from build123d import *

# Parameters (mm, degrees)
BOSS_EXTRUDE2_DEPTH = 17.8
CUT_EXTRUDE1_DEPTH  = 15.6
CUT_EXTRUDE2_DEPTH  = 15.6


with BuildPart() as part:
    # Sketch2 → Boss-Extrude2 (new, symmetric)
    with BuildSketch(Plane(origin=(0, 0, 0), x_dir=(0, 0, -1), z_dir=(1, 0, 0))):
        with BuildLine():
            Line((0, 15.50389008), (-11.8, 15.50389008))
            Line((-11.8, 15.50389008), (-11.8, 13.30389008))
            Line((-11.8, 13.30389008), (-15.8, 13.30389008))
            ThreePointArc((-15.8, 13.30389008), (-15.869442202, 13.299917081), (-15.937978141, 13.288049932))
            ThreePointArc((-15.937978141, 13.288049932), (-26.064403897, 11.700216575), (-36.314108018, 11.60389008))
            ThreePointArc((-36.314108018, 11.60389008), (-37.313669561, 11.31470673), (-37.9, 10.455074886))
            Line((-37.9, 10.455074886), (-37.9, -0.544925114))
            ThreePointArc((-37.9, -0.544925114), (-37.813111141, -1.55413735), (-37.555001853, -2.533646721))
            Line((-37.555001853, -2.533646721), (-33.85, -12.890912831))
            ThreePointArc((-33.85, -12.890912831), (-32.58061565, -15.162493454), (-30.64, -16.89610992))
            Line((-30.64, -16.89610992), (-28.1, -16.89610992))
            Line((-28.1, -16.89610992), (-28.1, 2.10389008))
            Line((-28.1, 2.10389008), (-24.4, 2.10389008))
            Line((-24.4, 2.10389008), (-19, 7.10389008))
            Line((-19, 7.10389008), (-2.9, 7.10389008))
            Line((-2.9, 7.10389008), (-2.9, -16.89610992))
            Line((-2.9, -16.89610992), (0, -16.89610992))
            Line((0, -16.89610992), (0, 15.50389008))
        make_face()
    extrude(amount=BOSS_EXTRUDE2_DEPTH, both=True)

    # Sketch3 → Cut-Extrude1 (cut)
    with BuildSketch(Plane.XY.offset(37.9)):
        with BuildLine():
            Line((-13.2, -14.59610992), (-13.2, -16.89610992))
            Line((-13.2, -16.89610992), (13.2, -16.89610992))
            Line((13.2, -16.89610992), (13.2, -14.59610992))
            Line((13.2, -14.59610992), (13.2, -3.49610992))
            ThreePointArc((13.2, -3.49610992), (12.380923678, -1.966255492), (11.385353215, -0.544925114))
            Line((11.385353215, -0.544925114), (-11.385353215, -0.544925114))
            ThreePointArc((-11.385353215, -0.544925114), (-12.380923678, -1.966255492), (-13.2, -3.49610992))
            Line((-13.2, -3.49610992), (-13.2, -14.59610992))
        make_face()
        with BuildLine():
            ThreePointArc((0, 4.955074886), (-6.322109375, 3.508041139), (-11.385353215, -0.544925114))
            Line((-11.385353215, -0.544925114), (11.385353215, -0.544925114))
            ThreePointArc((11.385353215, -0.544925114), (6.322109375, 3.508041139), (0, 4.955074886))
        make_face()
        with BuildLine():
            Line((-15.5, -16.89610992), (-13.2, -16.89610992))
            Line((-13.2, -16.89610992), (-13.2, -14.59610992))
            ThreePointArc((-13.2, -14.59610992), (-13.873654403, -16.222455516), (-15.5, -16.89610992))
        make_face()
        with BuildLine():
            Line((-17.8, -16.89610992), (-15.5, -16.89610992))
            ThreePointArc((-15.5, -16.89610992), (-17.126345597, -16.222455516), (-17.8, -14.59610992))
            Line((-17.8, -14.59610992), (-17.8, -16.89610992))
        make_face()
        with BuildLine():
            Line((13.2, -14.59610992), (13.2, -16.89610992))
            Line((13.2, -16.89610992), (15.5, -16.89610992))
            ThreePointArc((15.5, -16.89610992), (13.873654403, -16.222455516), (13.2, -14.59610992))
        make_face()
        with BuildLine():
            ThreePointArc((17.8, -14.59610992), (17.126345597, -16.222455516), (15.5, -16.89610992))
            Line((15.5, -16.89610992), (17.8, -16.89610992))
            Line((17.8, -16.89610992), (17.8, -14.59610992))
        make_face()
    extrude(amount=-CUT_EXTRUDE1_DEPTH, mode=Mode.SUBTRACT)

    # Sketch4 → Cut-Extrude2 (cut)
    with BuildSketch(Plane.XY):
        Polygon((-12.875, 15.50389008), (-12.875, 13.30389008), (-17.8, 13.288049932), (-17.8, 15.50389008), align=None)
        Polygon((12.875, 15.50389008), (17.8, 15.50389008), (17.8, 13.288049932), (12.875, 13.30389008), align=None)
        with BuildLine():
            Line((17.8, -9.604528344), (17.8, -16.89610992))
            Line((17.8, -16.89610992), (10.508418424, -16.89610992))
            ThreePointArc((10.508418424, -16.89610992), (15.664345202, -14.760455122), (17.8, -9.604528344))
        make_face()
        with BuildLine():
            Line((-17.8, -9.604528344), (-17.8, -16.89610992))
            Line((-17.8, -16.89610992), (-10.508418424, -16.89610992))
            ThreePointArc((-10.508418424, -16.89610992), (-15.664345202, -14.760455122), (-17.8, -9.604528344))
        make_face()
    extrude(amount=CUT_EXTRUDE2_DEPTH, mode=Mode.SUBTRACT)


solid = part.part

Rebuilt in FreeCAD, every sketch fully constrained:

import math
import FreeCAD as App
import Part
import Sketcher

doc = App.newDocument("Part")
body = doc.addObject("PartDesign::Body", "Body")

# Sketch on YZ plane
sketch1 = doc.addObject("Sketcher::SketchObject", "Sketch")
body.addObject(sketch1)
sketch1.AttachmentSupport = (doc.YZ_Plane, [""])
sketch1.MapMode = "FlatFace"
sketch1.addGeometry([
    Part.LineSegment(App.Vector(15.50389, 0, 0), App.Vector(15.50389, 11.8, 0)),  # 0
    Part.LineSegment(App.Vector(15.50389, 11.8, 0), App.Vector(13.30389, 11.8, 0)),  # 1
    Part.LineSegment(App.Vector(13.30389, 11.8, 0), App.Vector(13.30389, 15.8, 0)),  # 2
    Part.ArcOfCircle(Part.Circle(App.Vector(12.69503, 15.8, 0), App.Vector(0, 0, 1), 0.60886), math.radians(-0.000001), math.radians(13.097985)),  # 3
    Part.ArcOfCircle(Part.Circle(App.Vector(81.664907, 31.847235, 0), App.Vector(0, 0, 1), 70.203269), math.radians(176.351937), math.radians(193.097984)),  # 4
    Part.ArcOfCircle(Part.Circle(App.Vector(10.069868, 36.411912, 0), App.Vector(0, 0, 1), 1.537136), math.radians(-3.648063), math.radians(75.486972)),  # 5
    Part.LineSegment(App.Vector(10.455075, 37.9, 0), App.Vector(-0.544925, 37.9, 0)),  # 6
    Part.ArcOfCircle(Part.Circle(App.Vector(-0.544925, 31.995566, 0), App.Vector(0, 0, 1), 5.904434), math.radians(90), math.radians(109.683149)),  # 7
    Part.LineSegment(App.Vector(-2.533647, 37.555002, 0), App.Vector(-12.890913, 33.85, 0)),  # 8
    Part.ArcOfCircle(Part.Circle(App.Vector(-10.239533, 26.438115, 0), App.Vector(0, 0, 1), 7.87184), math.radians(109.683149), math.radians(147.738318)),  # 9
    Part.LineSegment(App.Vector(-16.89611, 30.64, 0), App.Vector(-16.89611, 28.1, 0)),  # 10
    Part.LineSegment(App.Vector(-16.89611, 28.1, 0), App.Vector(2.10389, 28.1, 0)),  # 11
    Part.LineSegment(App.Vector(2.10389, 28.1, 0), App.Vector(2.10389, 24.4, 0)),  # 12
    Part.LineSegment(App.Vector(2.10389, 24.4, 0), App.Vector(7.10389, 19, 0)),  # 13
    Part.LineSegment(App.Vector(7.10389, 19, 0), App.Vector(7.10389, 2.9, 0)),  # 14
    Part.LineSegment(App.Vector(7.10389, 2.9, 0), App.Vector(-16.89611, 2.9, 0)),  # 15
    Part.LineSegment(App.Vector(-16.89611, 2.9, 0), App.Vector(-16.89611, 0, 0)),  # 16
    Part.LineSegment(App.Vector(-16.89611, 0, 0), App.Vector(15.50389, 0, 0)),  # 17
], False)
sketch1.addConstraint([
    Sketcher.Constraint("Coincident", 0, 2, 1, 1),
    Sketcher.Constraint("Coincident", 1, 2, 2, 1),
    Sketcher.Constraint("Tangent", 2, 2, 3, 1),
    Sketcher.Constraint("Tangent", 3, 2, 4, 2),
    Sketcher.Constraint("Tangent", 4, 1, 5, 1),
    Sketcher.Constraint("Coincident", 5, 2, 6, 1),
    Sketcher.Constraint("Tangent", 6, 2, 7, 1),
    Sketcher.Constraint("Tangent", 7, 2, 8, 1),
    Sketcher.Constraint("Tangent", 8, 2, 9, 1),
    Sketcher.Constraint("Coincident", 9, 2, 10, 1),
    Sketcher.Constraint("Coincident", 10, 2, 11, 1),
    Sketcher.Constraint("Coincident", 11, 2, 12, 1),
    Sketcher.Constraint("Coincident", 12, 2, 13, 1),
    Sketcher.Constraint("Coincident", 13, 2, 14, 1),
    Sketcher.Constraint("Coincident", 14, 2, 15, 1),
    Sketcher.Constraint("Coincident", 15, 2, 16, 1),
    Sketcher.Constraint("Coincident", 16, 2, 17, 1),
    Sketcher.Constraint("Coincident", 17, 2, 0, 1),
    Sketcher.Constraint("Vertical", 0),
    Sketcher.Constraint("Horizontal", 1),
    Sketcher.Constraint("Vertical", 2),
    Sketcher.Constraint("Horizontal", 6),
    Sketcher.Constraint("Vertical", 10),
    Sketcher.Constraint("Horizontal", 11),
    Sketcher.Constraint("Vertical", 12),
    Sketcher.Constraint("Vertical", 14),
    Sketcher.Constraint("Horizontal", 15),
    Sketcher.Constraint("Vertical", 16),
    Sketcher.Constraint("Horizontal", 17),
    Sketcher.Constraint("PointOnObject", 16, 2, -1),
    Sketcher.Constraint("Vertical", 10, 2, 15, 2),
    Sketcher.Constraint("DistanceX", 6, 2, 6, 1, 11.0),
    Sketcher.Constraint("DistanceX", 11, 1, 11, 2, 19.0),
    Sketcher.Constraint("DistanceX", 15, 2, 15, 1, 24.0),
    Sketcher.Constraint("DistanceY", 2, 1, 2, 2, 4.0),
    Sketcher.Constraint("Distance", 8, 11.0),
    Sketcher.Constraint("DistanceX", 1, 2, 1, 1, 2.2),
    Sketcher.Constraint("DistanceX", 17, 1, 17, 2, 32.4),
    Sketcher.Constraint("DistanceY", 0, 1, 0, 2, 11.8),
    Sketcher.Constraint("DistanceY", 12, 2, 12, 1, 3.7),
    Sketcher.Constraint("DistanceY", 14, 2, 14, 1, 16.1),
    Sketcher.Constraint("DistanceY", 16, 2, 16, 1, 2.9),
    Sketcher.Constraint("DistanceY", 10, 2, 10, 1, 2.54),
    Sketcher.Constraint("DistanceY", -1, 1, 5, 2, 37.9),
    Sketcher.Constraint("DistanceY", -1, 1, 10, 2, 28.1),
    Sketcher.Constraint("DistanceX", 4, 1, 2, 2, 1.7),
    Sketcher.Constraint("DistanceY", -1, 1, 8, 2, 33.85),
    Sketcher.Constraint("Radius", 3, 0.60886),
    Sketcher.Constraint("Radius", 4, 70.203269),
    Sketcher.Constraint("Radius", 9, 7.87184),
    Sketcher.Constraint("DistanceY", -1, 1, 7, 2, 37.555002),
    Sketcher.Constraint("Radius", 5, 1.537136),
    Sketcher.Constraint("DistanceX", -1, 1, 3, 3, 12.69503),
])
pad1 = doc.addObject("PartDesign::Pad", "Pad")
body.addObject(pad1)
pad1.Profile = sketch1
pad1.Length = 35.6
pad1.Midplane = True

# Sketch on XY plane
sketch2 = doc.addObject("Sketcher::SketchObject", "Sketch001")
body.addObject(sketch2)
sketch2.AttachmentSupport = (doc.XY_Plane, [""])
sketch2.MapMode = "FlatFace"
sketch2.AttachmentOffset = App.Placement(App.Vector(0, 0, 37.9), App.Rotation())
sketch2.addGeometry([
    Part.LineSegment(App.Vector(13.2, -14.59611, 0), App.Vector(13.2, -3.49611, 0)),  # 0
    Part.ArcOfCircle(Part.Circle(App.Vector(0, -9.579131, 0), App.Vector(0, 0, 1), 14.534206), math.radians(24.741902), math.radians(38.431779)),  # 1
    Part.ArcOfCircle(Part.Circle(App.Vector(0, -9.579131, 0), App.Vector(0, 0, 1), 14.534206), math.radians(38.431779), math.radians(90)),  # 2
    Part.ArcOfCircle(Part.Circle(App.Vector(0, -9.579131, 0), App.Vector(0, 0, 1), 14.534206), math.radians(90), math.radians(141.568221)),  # 3
    Part.ArcOfCircle(Part.Circle(App.Vector(0, -9.579131, 0), App.Vector(0, 0, 1), 14.534206), math.radians(141.568221), math.radians(155.258098)),  # 4
    Part.LineSegment(App.Vector(-13.2, -3.49611, 0), App.Vector(-13.2, -14.59611, 0)),  # 5
    Part.ArcOfCircle(Part.Circle(App.Vector(-15.5, -14.59611, 0), App.Vector(0, 0, 1), 2.3), math.radians(-90), math.radians(0)),  # 6
    Part.LineSegment(App.Vector(-15.5, -16.89611, 0), App.Vector(15.5, -16.89611, 0)),  # 7
    Part.ArcOfCircle(Part.Circle(App.Vector(15.5, -14.59611, 0), App.Vector(0, 0, 1), 2.3), math.radians(-180), math.radians(-90)),  # 8
    Part.LineSegment(App.Vector(-17.8, -16.89611, 0), App.Vector(-15.5, -16.89611, 0)),  # 9
    Part.ArcOfCircle(Part.Circle(App.Vector(-15.5, -14.59611, 0), App.Vector(0, 0, 1), 2.3), math.radians(-180), math.radians(-90)),  # 10
    Part.LineSegment(App.Vector(-17.8, -14.59611, 0), App.Vector(-17.8, -16.89611, 0)),  # 11
    Part.ArcOfCircle(Part.Circle(App.Vector(15.5, -14.59611, 0), App.Vector(0, 0, 1), 2.3), math.radians(-90), math.radians(0)),  # 12
    Part.LineSegment(App.Vector(15.5, -16.89611, 0), App.Vector(17.8, -16.89611, 0)),  # 13
    Part.LineSegment(App.Vector(17.8, -16.89611, 0), App.Vector(17.8, -14.59611, 0)),  # 14
], False)
sketch2.addConstraint([
    Sketcher.Constraint("Coincident", 0, 2, 1, 1),
    Sketcher.Constraint("Tangent", 1, 2, 2, 1),
    Sketcher.Constraint("Tangent", 2, 2, 3, 1),
    Sketcher.Constraint("Tangent", 3, 2, 4, 1),
    Sketcher.Constraint("Coincident", 4, 2, 5, 1),
    Sketcher.Constraint("Tangent", 5, 2, 6, 2),
    Sketcher.Constraint("Tangent", 6, 1, 7, 1),
    Sketcher.Constraint("Tangent", 7, 2, 8, 2),
    Sketcher.Constraint("Tangent", 8, 1, 0, 1),
    Sketcher.Constraint("Tangent", 9, 2, 10, 2),
    Sketcher.Constraint("Tangent", 10, 1, 11, 1),
    Sketcher.Constraint("Coincident", 11, 2, 9, 1),
    Sketcher.Constraint("Tangent", 12, 1, 13, 1),
    Sketcher.Constraint("Coincident", 13, 2, 14, 1),
    Sketcher.Constraint("Tangent", 14, 2, 12, 2),
    Sketcher.Constraint("Vertical", 0),
    Sketcher.Constraint("Vertical", 5),
    Sketcher.Constraint("Horizontal", 7),
    Sketcher.Constraint("Horizontal", 9),
    Sketcher.Constraint("Vertical", 11),
    Sketcher.Constraint("Horizontal", 13),
    Sketcher.Constraint("Vertical", 14),
    Sketcher.Constraint("Coincident", 3, 3, 1, 3),
    Sketcher.Constraint("Coincident", 10, 3, 6, 3),
    Sketcher.Constraint("Coincident", 12, 3, 8, 3),
    Sketcher.Constraint("Equal", 3, 4),
    Sketcher.Constraint("Equal", 6, 8),
    Sketcher.Constraint("Equal", 8, 10),
    Sketcher.Constraint("Equal", 10, 12),
    Sketcher.Constraint("Symmetric", 1, 2, 3, 2, -2),
    Sketcher.Constraint("PointOnObject", 2, 2, -2),
    Sketcher.Constraint("Horizontal", 0, 2, 4, 2),
    Sketcher.Constraint("Radius", 6, 2.3),
    Sketcher.Constraint("DistanceX", 7, 1, 7, 2, 31.0),
    Sketcher.Constraint("DistanceY", 0, 1, 0, 2, 11.1),
    Sketcher.Constraint("DistanceY", 1, 2, 2, 2, 5.5),
    Sketcher.Constraint("Radius", 1, 14.534206),
    Sketcher.Constraint("DistanceY", 1, 3, -1, 1, 9.579131),
])
pocket1 = doc.addObject("PartDesign::Pocket", "Pocket")
body.addObject(pocket1)
pocket1.Profile = sketch2
pocket1.Length = 15.6

# Sketch on XY plane
sketch3 = doc.addObject("Sketcher::SketchObject", "Sketch002")
body.addObject(sketch3)
sketch3.AttachmentSupport = (doc.XY_Plane, [""])
sketch3.MapMode = "FlatFace"
sketch3.addGeometry([
    Part.LineSegment(App.Vector(-12.875, 13.30389, 0), App.Vector(-12.875, 15.50389, 0)),  # 0
    Part.LineSegment(App.Vector(-12.875, 15.50389, 0), App.Vector(-17.8, 15.50389, 0)),  # 1
    Part.LineSegment(App.Vector(-17.8, 15.50389, 0), App.Vector(-17.8, 13.28805, 0)),  # 2
    Part.LineSegment(App.Vector(-17.8, 13.28805, 0), App.Vector(-12.875, 13.30389, 0)),  # 3
    Part.LineSegment(App.Vector(17.8, 15.50389, 0), App.Vector(12.875, 15.50389, 0)),  # 4
    Part.LineSegment(App.Vector(12.875, 15.50389, 0), App.Vector(12.875, 13.30389, 0)),  # 5
    Part.LineSegment(App.Vector(12.875, 13.30389, 0), App.Vector(17.8, 13.28805, 0)),  # 6
    Part.LineSegment(App.Vector(17.8, 13.28805, 0), App.Vector(17.8, 15.50389, 0)),  # 7
    Part.LineSegment(App.Vector(17.8, -16.89611, 0), App.Vector(17.8, -9.604528, 0)),  # 8
    Part.ArcOfCircle(Part.Circle(App.Vector(10.508418, -9.604528, 0), App.Vector(0, 0, 1), 7.291582), math.radians(-90), math.radians(0)),  # 9
    Part.LineSegment(App.Vector(10.508418, -16.89611, 0), App.Vector(17.8, -16.89611, 0)),  # 10
    Part.LineSegment(App.Vector(-17.8, -9.604528, 0), App.Vector(-17.8, -16.89611, 0)),  # 11
    Part.LineSegment(App.Vector(-17.8, -16.89611, 0), App.Vector(-10.508418, -16.89611, 0)),  # 12
    Part.ArcOfCircle(Part.Circle(App.Vector(-10.508418, -9.604528, 0), App.Vector(0, 0, 1), 7.291582), math.radians(180), math.radians(270)),  # 13
], False)
sketch3.addConstraint([
    Sketcher.Constraint("Coincident", 0, 2, 1, 1),
    Sketcher.Constraint("Coincident", 1, 2, 2, 1),
    Sketcher.Constraint("Coincident", 2, 2, 3, 1),
    Sketcher.Constraint("Coincident", 3, 2, 0, 1),
    Sketcher.Constraint("Coincident", 4, 2, 5, 1),
    Sketcher.Constraint("Coincident", 5, 2, 6, 1),
    Sketcher.Constraint("Coincident", 6, 2, 7, 1),
    Sketcher.Constraint("Coincident", 7, 2, 4, 1),
    Sketcher.Constraint("Tangent", 8, 2, 9, 2),
    Sketcher.Constraint("Tangent", 9, 1, 10, 1),
    Sketcher.Constraint("Coincident", 10, 2, 8, 1),
    Sketcher.Constraint("Coincident", 11, 2, 12, 1),
    Sketcher.Constraint("Tangent", 12, 2, 13, 2),
    Sketcher.Constraint("Tangent", 13, 1, 11, 1),
    Sketcher.Constraint("Vertical", 0),
    Sketcher.Constraint("Horizontal", 1),
    Sketcher.Constraint("Vertical", 2),
    Sketcher.Constraint("Horizontal", 4),
    Sketcher.Constraint("Vertical", 5),
    Sketcher.Constraint("Vertical", 7),
    Sketcher.Constraint("Vertical", 8),
    Sketcher.Constraint("Horizontal", 10),
    Sketcher.Constraint("Vertical", 11),
    Sketcher.Constraint("Horizontal", 12),
    Sketcher.Constraint("Equal", 9, 13),
    Sketcher.Constraint("Symmetric", 9, 3, 13, 3, -2),
    Sketcher.Constraint("Symmetric", 0, 2, 4, 2, -2),
    Sketcher.Constraint("Symmetric", 2, 2, 6, 2, -2),
    Sketcher.Constraint("Horizontal", 3, 2, 5, 2),
    Sketcher.Constraint("Vertical", 7, 2, 8, 2),
    Sketcher.Constraint("DistanceY", 0, 1, 0, 2, 2.2),
    Sketcher.Constraint("DistanceX", 1, 2, -1, 1, 17.8),
    Sketcher.Constraint("DistanceY", 9, 1, 5, 2, 30.2),
    Sketcher.Constraint("DistanceX", 1, 2, 1, 1, 4.925),
    Sketcher.Constraint("Radius", 9, 7.291582),
    Sketcher.Constraint("DistanceY", 2, 2, 2, 1, 2.21584),
    Sketcher.Constraint("DistanceY", 9, 3, -1, 1, 9.604528),
])
pocket2 = doc.addObject("PartDesign::Pocket", "Pocket001")
body.addObject(pocket2)
pocket2.Profile = sketch3
pocket2.Length = 15.6
pocket2.Reversed = True

doc.recompute()
